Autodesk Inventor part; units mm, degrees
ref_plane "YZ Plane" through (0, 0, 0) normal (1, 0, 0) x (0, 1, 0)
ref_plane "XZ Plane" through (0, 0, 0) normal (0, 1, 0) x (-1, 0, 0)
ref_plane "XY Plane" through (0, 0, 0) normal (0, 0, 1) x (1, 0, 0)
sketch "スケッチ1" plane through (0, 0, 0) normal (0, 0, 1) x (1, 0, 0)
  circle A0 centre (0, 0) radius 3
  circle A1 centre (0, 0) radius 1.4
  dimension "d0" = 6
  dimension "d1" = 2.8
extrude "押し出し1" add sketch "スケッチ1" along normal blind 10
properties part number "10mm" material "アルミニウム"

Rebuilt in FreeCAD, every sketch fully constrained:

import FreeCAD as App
import Part
import Sketcher
from FreeCAD import Vector

doc = App.newDocument("Part")
body = doc.addObject("PartDesign::Body", "Body")

# Sketch on XY plane
sketch1 = body.newObject("Sketcher::SketchObject", "Sketch")
sketch1.AttachmentSupport = (doc.getObject("XY_Plane"), [""])
sketch1.MapMode = "FlatFace"
sketch1.addGeometry([
    Part.Circle(Vector(0, 0, 0), Vector(0, 0, 1), 3),
    Part.Circle(Vector(0, 0, 0), Vector(0, 0, 1), 1.4),
], False)
sketch1.addConstraint([
    Sketcher.Constraint("Coincident", 0, 3, -1, 1),
    Sketcher.Constraint("Coincident", 1, 3, -1, 1),
    Sketcher.Constraint("Diameter", 0, 6.0),
    Sketcher.Constraint("Diameter", 1, 2.8),
])
pad1 = body.newObject("PartDesign::Pad", "Pad")
pad1.Profile = sketch1
pad1.Length = 10

doc.recompute()
